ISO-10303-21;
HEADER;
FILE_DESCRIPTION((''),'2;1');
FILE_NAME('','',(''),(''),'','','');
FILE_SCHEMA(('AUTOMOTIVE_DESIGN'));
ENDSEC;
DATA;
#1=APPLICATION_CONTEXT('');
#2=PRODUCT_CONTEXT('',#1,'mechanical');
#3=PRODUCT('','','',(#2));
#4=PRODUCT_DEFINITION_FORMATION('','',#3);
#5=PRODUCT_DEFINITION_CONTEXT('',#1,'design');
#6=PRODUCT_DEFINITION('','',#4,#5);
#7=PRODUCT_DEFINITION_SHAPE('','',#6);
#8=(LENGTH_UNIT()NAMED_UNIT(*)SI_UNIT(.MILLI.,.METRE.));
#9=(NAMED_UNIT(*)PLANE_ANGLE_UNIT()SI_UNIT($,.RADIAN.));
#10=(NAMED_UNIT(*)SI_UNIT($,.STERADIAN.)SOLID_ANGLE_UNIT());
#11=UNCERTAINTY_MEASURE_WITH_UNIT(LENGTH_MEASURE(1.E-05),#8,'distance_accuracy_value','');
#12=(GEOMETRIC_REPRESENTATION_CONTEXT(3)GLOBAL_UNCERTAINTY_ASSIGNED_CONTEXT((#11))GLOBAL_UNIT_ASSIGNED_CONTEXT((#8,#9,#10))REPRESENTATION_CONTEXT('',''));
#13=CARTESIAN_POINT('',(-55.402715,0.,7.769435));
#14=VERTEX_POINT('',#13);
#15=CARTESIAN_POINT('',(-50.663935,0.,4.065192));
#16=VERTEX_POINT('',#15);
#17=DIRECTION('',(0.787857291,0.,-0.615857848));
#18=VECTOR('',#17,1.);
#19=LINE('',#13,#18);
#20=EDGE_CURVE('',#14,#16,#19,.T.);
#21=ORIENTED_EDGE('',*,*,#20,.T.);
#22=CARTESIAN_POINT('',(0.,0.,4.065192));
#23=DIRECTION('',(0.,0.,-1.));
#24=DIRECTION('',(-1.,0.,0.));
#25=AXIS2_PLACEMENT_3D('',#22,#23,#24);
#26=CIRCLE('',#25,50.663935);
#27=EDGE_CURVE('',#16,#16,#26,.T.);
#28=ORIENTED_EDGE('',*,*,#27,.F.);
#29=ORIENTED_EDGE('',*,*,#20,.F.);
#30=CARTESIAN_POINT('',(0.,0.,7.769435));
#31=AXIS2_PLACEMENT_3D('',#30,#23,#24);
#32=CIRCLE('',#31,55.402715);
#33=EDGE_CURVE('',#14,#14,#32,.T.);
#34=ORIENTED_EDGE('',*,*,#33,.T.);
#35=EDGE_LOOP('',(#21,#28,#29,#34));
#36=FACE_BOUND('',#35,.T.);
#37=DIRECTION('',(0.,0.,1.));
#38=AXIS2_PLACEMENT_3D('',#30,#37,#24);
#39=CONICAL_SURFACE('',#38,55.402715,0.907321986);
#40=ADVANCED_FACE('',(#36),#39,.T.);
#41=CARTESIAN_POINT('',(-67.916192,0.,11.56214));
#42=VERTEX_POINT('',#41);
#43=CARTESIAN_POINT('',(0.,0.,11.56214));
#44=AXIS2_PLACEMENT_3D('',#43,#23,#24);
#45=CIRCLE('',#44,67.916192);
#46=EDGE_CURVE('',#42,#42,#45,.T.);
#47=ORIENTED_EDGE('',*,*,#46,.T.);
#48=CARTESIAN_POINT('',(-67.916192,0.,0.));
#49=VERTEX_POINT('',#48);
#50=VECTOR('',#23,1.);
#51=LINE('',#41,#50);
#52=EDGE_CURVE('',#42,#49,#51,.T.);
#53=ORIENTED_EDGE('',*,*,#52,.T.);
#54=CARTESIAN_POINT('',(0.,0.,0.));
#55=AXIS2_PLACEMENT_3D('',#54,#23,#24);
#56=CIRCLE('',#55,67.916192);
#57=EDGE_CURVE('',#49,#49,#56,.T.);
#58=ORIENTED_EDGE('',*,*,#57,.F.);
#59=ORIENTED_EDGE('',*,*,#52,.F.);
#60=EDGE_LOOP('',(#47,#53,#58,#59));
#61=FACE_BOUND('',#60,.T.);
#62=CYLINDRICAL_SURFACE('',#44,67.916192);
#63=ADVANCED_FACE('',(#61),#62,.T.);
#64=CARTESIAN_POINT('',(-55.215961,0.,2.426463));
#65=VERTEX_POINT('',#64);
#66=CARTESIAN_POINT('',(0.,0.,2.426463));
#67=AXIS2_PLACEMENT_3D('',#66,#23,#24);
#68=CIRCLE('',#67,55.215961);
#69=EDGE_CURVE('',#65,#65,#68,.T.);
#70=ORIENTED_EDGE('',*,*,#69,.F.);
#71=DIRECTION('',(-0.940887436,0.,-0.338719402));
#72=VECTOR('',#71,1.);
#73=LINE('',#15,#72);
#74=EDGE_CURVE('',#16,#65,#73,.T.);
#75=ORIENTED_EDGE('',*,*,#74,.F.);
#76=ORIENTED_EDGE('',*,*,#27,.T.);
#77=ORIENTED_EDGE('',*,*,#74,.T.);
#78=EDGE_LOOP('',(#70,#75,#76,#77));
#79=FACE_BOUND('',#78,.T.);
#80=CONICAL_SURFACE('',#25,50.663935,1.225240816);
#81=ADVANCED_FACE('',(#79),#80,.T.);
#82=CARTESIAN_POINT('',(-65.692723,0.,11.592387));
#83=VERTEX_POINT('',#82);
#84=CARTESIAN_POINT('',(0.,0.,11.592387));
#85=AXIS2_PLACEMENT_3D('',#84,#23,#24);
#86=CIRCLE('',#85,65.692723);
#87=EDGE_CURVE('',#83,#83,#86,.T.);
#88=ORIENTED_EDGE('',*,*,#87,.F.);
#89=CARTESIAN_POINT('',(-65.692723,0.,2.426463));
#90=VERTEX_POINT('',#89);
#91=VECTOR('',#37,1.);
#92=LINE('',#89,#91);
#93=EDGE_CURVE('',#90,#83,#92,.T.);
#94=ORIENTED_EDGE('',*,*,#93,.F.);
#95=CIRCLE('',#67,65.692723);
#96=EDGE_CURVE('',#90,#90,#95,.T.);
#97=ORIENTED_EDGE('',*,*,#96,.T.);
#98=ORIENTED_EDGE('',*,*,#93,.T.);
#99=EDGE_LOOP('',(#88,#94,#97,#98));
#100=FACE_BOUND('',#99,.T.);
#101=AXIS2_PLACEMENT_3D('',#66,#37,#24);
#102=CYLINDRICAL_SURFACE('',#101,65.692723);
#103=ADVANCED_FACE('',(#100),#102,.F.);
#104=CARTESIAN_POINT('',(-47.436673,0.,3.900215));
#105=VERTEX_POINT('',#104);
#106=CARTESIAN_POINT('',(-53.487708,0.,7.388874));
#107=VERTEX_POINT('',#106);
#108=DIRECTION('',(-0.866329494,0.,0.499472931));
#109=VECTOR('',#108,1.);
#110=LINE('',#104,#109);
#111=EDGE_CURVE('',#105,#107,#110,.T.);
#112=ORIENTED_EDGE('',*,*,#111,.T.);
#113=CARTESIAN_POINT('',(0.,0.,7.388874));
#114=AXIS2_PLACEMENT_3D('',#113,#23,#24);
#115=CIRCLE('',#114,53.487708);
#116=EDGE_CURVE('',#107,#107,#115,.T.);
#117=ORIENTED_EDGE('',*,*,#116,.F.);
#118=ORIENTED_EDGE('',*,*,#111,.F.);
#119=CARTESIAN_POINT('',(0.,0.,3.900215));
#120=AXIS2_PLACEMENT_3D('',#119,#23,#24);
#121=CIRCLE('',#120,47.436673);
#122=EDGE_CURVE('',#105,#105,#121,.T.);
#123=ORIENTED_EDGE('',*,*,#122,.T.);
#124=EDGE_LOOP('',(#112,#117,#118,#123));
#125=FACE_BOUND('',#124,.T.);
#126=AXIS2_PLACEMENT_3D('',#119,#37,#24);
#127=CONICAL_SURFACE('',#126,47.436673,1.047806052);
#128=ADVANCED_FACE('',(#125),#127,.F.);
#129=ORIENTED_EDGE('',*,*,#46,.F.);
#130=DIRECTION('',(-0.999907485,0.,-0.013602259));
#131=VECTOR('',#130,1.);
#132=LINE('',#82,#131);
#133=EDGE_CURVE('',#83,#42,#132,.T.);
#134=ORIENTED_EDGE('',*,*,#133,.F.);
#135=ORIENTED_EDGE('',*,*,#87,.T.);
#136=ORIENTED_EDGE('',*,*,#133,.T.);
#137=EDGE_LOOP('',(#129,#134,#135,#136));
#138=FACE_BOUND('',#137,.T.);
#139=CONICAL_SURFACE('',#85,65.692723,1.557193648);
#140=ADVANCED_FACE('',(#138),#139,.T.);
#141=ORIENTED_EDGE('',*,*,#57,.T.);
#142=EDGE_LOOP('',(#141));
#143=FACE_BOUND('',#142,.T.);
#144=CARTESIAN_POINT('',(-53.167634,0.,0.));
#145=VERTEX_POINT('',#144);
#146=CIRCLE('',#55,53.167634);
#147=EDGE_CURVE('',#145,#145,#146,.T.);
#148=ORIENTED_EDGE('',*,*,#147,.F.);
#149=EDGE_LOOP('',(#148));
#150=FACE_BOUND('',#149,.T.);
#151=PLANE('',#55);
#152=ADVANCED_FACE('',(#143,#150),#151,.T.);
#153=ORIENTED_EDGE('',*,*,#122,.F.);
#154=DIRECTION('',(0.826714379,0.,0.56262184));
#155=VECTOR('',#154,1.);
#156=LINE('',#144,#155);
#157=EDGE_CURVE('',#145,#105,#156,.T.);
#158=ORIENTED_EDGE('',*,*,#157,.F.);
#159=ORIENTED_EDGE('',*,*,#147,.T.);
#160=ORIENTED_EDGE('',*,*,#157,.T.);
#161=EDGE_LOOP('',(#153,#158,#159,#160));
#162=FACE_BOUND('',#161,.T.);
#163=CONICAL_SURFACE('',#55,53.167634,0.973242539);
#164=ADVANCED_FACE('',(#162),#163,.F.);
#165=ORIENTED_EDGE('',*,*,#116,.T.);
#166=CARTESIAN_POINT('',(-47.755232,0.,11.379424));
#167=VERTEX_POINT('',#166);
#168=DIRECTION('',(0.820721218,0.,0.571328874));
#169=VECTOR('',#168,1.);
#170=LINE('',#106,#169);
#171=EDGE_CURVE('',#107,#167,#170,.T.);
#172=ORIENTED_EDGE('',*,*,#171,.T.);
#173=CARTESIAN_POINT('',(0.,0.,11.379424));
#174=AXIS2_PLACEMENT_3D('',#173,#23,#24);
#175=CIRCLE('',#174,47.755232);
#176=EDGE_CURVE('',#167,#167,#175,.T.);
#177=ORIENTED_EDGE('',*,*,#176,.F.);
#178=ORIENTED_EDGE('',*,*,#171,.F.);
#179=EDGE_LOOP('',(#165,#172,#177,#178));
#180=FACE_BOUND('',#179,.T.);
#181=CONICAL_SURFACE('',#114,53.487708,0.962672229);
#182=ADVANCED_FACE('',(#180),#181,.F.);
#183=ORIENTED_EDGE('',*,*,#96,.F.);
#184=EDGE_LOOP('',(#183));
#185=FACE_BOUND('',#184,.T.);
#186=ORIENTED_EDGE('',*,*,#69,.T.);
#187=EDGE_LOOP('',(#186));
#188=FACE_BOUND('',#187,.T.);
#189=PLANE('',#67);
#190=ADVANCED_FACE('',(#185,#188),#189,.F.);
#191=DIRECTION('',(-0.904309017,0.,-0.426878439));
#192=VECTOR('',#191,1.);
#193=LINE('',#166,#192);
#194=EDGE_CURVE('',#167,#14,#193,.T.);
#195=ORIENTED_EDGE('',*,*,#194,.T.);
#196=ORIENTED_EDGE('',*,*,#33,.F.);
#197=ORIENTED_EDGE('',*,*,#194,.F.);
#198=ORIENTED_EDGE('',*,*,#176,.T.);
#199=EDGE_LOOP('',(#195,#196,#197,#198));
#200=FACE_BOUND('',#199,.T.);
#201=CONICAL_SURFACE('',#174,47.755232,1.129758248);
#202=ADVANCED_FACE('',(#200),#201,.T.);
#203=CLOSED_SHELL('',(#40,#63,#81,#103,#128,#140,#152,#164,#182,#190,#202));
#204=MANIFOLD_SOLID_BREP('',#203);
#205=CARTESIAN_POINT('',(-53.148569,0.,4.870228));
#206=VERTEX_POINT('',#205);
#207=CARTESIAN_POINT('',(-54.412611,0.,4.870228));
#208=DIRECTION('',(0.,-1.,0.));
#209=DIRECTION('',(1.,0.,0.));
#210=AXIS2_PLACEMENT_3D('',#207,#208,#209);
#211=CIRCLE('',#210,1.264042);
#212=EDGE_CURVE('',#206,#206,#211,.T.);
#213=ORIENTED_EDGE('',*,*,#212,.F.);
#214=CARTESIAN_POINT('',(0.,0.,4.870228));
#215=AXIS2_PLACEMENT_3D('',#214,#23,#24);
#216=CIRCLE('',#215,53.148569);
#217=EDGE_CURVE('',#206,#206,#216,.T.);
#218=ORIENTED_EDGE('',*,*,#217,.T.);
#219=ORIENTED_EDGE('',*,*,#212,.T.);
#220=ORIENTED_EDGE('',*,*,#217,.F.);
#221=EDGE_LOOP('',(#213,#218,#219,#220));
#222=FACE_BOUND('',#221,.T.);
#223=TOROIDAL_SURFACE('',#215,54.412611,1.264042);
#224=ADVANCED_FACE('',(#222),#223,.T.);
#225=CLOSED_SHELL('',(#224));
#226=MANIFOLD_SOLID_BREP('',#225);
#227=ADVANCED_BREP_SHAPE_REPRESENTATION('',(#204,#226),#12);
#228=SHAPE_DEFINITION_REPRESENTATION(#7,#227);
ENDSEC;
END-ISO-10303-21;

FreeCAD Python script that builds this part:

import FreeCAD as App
import Part
import Sketcher
from FreeCAD import Vector


def add_polygon(sketch, points):
    """Adds a closed chain of lines whose ends are joined by coincident constraints."""
    first, n = sketch.GeometryCount, len(points)
    for a, b in zip(points, points[1:] + points[:1]):
        sketch.addGeometry(Part.LineSegment(App.Vector(*a, 0), App.Vector(*b, 0)), False)
    for i in range(n):
        sketch.addConstraint(Sketcher.Constraint("Coincident", first + i, 2, first + (i + 1) % n, 1))

doc = App.newDocument("Part")
body = doc.addObject("PartDesign::Body", "Body")
body.AllowCompound = True

sketch1 = body.newObject("Sketcher::SketchObject", "Sketch")
sketch1.AttachmentSupport = (doc.getObject("XZ_Plane"), [""])
sketch1.MapMode = "FlatFace"
add_polygon(sketch1, [(-65.7, 11.6), (-67.9, 11.6), (-67.9, 0), (-53.2, 0), (-47.4, 3.9), (-53.5, 7.4), (-47.8, 11.4), (-55.4, 7.8), (-50.7, 4.1), (-55.2, 2.4), (-65.7, 2.4)])
sketch1.addGeometry(Part.Circle(Vector(-54.4, 4.9, 0), Vector(0, 0, 1), 1.3), False)
sketch1.addConstraint([
    Sketcher.Constraint("Vertical", 1),
    Sketcher.Constraint("Horizontal", 2),
    Sketcher.Constraint("Horizontal", 9),
    Sketcher.Constraint("Vertical", 10),
    Sketcher.Constraint("PointOnObject", 1, 2, -1),
    Sketcher.Constraint("Equal", 4, 5),
    Sketcher.Constraint("Diameter", 11, 2.528084),
    Sketcher.Constraint("DistanceY", 1, 2, 1, 1, 11.56214),
    Sketcher.Constraint("DistanceX", 2, 2, 7, 2, 2.503699),
    Sketcher.Constraint("Distance", 4, 6.984681),
    Sketcher.Constraint("Distance", 7, 6.014769),
    Sketcher.Constraint("DistanceX", 2, 1, 2, 2, 14.748558),
    Sketcher.Constraint("DistanceX", 9, 2, 9, 1, 10.476762),
    Sketcher.Constraint("DistanceY", 10, 1, 10, 2, 9.165924),
    Sketcher.Constraint("DistanceX", 11, 3, -1, 1, 54.412611),
    Sketcher.Constraint("DistanceX", 0, 2, -1, 1, 67.916192),
    Sketcher.Constraint("DistanceY", -1, 1, 7, 2, 4.065192),
    Sketcher.Constraint("DistanceX", 8, 2, -1, 1, 55.215961),
    Sketcher.Constraint("DistanceY", 11, 3, 0, 2, 6.691912),
    Sketcher.Constraint("DistanceX", 2, 2, 3, 2, 5.730961),
    Sketcher.Constraint("DistanceY", 3, 2, 4, 2, 3.488659),
    Sketcher.Constraint("DistanceY", 4, 2, 5, 2, 3.99055),
    Sketcher.Constraint("DistanceY", 4, 2, 6, 2, 0.380561),
    Sketcher.Constraint("DistanceX", 6, 2, 2, 2, 2.235081),
    Sketcher.Constraint("DistanceY", 8, 2, 7, 2, 1.638729),
])
revolution = body.newObject("PartDesign::Revolution", "Revolution")
revolution.Profile = sketch1
revolution.ReferenceAxis = (sketch1, ["V_Axis"])
revolution.Angle = 360

doc.recompute()
